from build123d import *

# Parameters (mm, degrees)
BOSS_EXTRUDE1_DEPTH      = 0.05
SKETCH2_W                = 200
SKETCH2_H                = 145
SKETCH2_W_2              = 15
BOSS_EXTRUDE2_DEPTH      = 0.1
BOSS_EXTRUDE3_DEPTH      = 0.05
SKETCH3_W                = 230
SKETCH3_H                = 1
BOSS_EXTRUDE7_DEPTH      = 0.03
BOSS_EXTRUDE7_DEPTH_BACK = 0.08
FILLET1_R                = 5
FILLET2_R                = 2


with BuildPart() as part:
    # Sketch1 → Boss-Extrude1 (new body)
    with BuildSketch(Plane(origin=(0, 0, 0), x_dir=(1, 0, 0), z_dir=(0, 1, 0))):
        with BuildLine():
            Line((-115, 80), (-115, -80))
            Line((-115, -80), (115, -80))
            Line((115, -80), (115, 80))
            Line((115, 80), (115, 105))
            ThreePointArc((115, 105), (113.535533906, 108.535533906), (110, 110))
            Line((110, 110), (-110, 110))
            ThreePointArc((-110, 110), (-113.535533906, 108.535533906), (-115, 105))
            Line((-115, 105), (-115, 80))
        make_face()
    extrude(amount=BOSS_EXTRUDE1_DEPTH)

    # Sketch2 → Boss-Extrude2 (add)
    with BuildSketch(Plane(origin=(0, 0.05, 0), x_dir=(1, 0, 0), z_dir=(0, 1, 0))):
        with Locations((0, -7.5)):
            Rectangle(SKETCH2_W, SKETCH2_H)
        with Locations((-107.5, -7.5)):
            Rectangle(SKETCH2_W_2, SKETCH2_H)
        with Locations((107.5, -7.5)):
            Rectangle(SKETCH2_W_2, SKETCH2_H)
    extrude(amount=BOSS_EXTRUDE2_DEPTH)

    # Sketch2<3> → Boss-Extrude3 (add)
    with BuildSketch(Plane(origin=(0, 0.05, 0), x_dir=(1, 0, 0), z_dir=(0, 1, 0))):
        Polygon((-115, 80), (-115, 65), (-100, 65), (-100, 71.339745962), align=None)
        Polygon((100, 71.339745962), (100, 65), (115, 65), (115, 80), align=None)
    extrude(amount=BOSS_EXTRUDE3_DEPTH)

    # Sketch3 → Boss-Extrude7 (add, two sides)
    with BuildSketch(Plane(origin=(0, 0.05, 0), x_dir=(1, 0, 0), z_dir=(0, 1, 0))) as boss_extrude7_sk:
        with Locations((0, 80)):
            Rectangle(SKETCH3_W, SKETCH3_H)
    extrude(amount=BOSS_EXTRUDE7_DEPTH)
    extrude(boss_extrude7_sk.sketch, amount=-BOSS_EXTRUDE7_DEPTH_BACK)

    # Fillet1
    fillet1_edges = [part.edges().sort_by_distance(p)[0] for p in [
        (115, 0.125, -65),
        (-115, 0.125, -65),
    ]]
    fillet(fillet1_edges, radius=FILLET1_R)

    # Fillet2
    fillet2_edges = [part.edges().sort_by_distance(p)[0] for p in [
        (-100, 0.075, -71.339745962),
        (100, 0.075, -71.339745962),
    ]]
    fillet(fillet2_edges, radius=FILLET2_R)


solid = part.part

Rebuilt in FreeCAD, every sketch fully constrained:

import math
import FreeCAD as App
import Part
import Sketcher
Q = App.Units.Quantity


def edges_at(feature, points):
    """Names of the edges that pass closest to the given points."""
    edges = feature.Shape.Edges
    near = lambda p: min(range(len(edges)), key=lambda i: edges[i].distToShape(Part.Vertex(*p))[0])
    return sorted({f"Edge{near(p) + 1}" for p in points})


def add_polygon(sketch, points):
    """Adds a closed chain of lines whose ends are joined by coincident constraints."""
    first, n = sketch.GeometryCount, len(points)
    for a, b in zip(points, points[1:] + points[:1]):
        sketch.addGeometry(Part.LineSegment(App.Vector(*a, 0), App.Vector(*b, 0)), False)
    for i in range(n):
        sketch.addConstraint(Sketcher.Constraint("Coincident", first + i, 2, first + (i + 1) % n, 1))

doc = App.newDocument("Part")
body = doc.addObject("PartDesign::Body", "Body")

# Sketch on XZ plane
sketch1 = doc.addObject("Sketcher::SketchObject", "Sketch")
body.addObject(sketch1)
sketch1.AttachmentSupport = (doc.XZ_Plane, [""])
sketch1.MapMode = "FlatFace"
sketch1.addGeometry(Part.LineSegment(App.Vector(-115, 80, 0), App.Vector(115, 80, 0)), False)
sketch1.addGeometry(Part.LineSegment(App.Vector(115, 80, 0), App.Vector(115, -105, 0)), False)
sketch1.addGeometry(Part.ArcOfCircle(Part.Circle(App.Vector(110, -105, 0), App.Vector(0, 0, 1), 5), math.radians(-90), math.radians(0)), False)
sketch1.addGeometry(Part.LineSegment(App.Vector(110, -110, 0), App.Vector(-110, -110, 0)), False)
sketch1.addGeometry(Part.ArcOfCircle(Part.Circle(App.Vector(-110, -105, 0), App.Vector(0, 0, 1), 5), math.radians(180), math.radians(270)), False)
sketch1.addGeometry(Part.LineSegment(App.Vector(-115, -105, 0), App.Vector(-115, 80, 0)), False)
sketch1.addConstraint(Sketcher.Constraint("Coincident", 0, 2, 1, 1))
sketch1.addConstraint(Sketcher.Constraint("Tangent", 1, 2, 2, 2))
sketch1.addConstraint(Sketcher.Constraint("Tangent", 2, 1, 3, 1))
sketch1.addConstraint(Sketcher.Constraint("Tangent", 3, 2, 4, 2))
sketch1.addConstraint(Sketcher.Constraint("Tangent", 4, 1, 5, 1))
sketch1.addConstraint(Sketcher.Constraint("Coincident", 5, 2, 0, 1))
sketch1.addConstraint(Sketcher.Constraint("Horizontal", 0))
sketch1.addConstraint(Sketcher.Constraint("Vertical", 1))
sketch1.addConstraint(Sketcher.Constraint("Horizontal", 3))
sketch1.addConstraint(Sketcher.Constraint("Vertical", 5))
sketch1.addConstraint(Sketcher.Constraint("Equal", 2, 4))
sketch1.addConstraint(Sketcher.Constraint("Radius", 2, 5.0))
sketch1.addConstraint(Sketcher.Constraint("DistanceX", 0, 1, 0, 2, 230.0))
sketch1.addConstraint(Sketcher.Constraint("DistanceY", 1, 2, 1, 1, 185.0))
sketch1.addConstraint(Sketcher.Constraint("DistanceX", -1, 1, 2, 3, 110.0))
sketch1.addConstraint(Sketcher.Constraint("DistanceY", 2, 3, -1, 1, 105.0))
pad1 = doc.addObject("PartDesign::Pad", "Pad")
body.addObject(pad1)
pad1.Profile = sketch1
pad1.Length = 0.05
pad1.Reversed = True

# Sketch on XZ plane
sketch2 = doc.addObject("Sketcher::SketchObject", "Sketch001")
body.addObject(sketch2)
sketch2.AttachmentSupport = (doc.XZ_Plane, [""])
sketch2.MapMode = "FlatFace"
sketch2.AttachmentOffset = App.Placement(App.Vector(0, 0, -0.05), App.Rotation())
add_polygon(sketch2, [(-115, -65), (-115, 80), (115, 80), (115, -65)])  # lines 0-3
sketch2.addConstraint(Sketcher.Constraint("Vertical", 0))
sketch2.addConstraint(Sketcher.Constraint("Horizontal", 1))
sketch2.addConstraint(Sketcher.Constraint("Vertical", 2))
sketch2.addConstraint(Sketcher.Constraint("Horizontal", 3))
sketch2.addConstraint(Sketcher.Constraint("DistanceX", 1, 1, 1, 2, 230.0))
sketch2.addConstraint(Sketcher.Constraint("DistanceY", 0, 1, 0, 2, 145.0))
sketch2.addConstraint(Sketcher.Constraint("DistanceX", 0, 2, -1, 1, 115.0))
sketch2.addConstraint(Sketcher.Constraint("DistanceY", -1, 1, 0, 2, 80.0))
pad2 = doc.addObject("PartDesign::Pad", "Pad001")
body.addObject(pad2)
pad2.Profile = sketch2
pad2.Length = 0.1
pad2.Reversed = True

# Sketch on XZ plane
sketch3 = doc.addObject("Sketcher::SketchObject", "Sketch002")
body.addObject(sketch3)
sketch3.AttachmentSupport = (doc.XZ_Plane, [""])
sketch3.MapMode = "FlatFace"
sketch3.AttachmentOffset = App.Placement(App.Vector(0, 0, -0.05), App.Rotation())
add_polygon(sketch3, [(-115, -80), (-115, -65), (-100, -65), (-100, -71)])  # lines 0-3
add_polygon(sketch3, [(100, -71), (100, -65), (115, -65), (115, -80)])  # lines 4-7
sketch3.addConstraint(Sketcher.Constraint("Vertical", 0))
sketch3.addConstraint(Sketcher.Constraint("Horizontal", 1))
sketch3.addConstraint(Sketcher.Constraint("Vertical", 2))
sketch3.addConstraint(Sketcher.Constraint("Vertical", 4))
sketch3.addConstraint(Sketcher.Constraint("Horizontal", 5))
sketch3.addConstraint(Sketcher.Constraint("Vertical", 6))
sketch3.addConstraint(Sketcher.Constraint("Symmetric", 1, 2, 4, 2, -2))
sketch3.addConstraint(Sketcher.Constraint("Symmetric", 3, 2, 6, 2, -2))
sketch3.addConstraint(Sketcher.Constraint("Horizontal", 2, 2, 7, 2))
sketch3.addConstraint(Sketcher.Constraint("Equal", 5, 0))
sketch3.addConstraint(Sketcher.Constraint("DistanceX", 1, 1, 1, 2, 15.0))
sketch3.addConstraint(Sketcher.Constraint("Angle", 3, Q("-150 deg")))
sketch3.addConstraint(Sketcher.Constraint("DistanceX", 0, 2, -1, 1, 115.0))
sketch3.addConstraint(Sketcher.Constraint("DistanceY", 0, 2, -1, 1, 65.0))
pad3 = doc.addObject("PartDesign::Pad", "Pad002")
body.addObject(pad3)
pad3.Profile = sketch3
pad3.Length = 0.05
pad3.Reversed = True

# Sketch on XZ plane
sketch4 = doc.addObject("Sketcher::SketchObject", "Sketch003")
body.addObject(sketch4)
sketch4.AttachmentSupport = (doc.XZ_Plane, [""])
sketch4.MapMode = "FlatFace"
sketch4.AttachmentOffset = App.Placement(App.Vector(0, 0, -0.05), App.Rotation())
add_polygon(sketch4, [(-115, -80.5), (-115, -79.5), (115, -79.5), (115, -80.5)])  # lines 0-3
sketch4.addConstraint(Sketcher.Constraint("Vertical", 0))
sketch4.addConstraint(Sketcher.Constraint("Horizontal", 1))
sketch4.addConstraint(Sketcher.Constraint("Vertical", 2))
sketch4.addConstraint(Sketcher.Constraint("Horizontal", 3))
sketch4.addConstraint(Sketcher.Constraint("DistanceX", 1, 1, 1, 2, 230.0))
sketch4.addConstraint(Sketcher.Constraint("DistanceY", 0, 1, 0, 2, 1.0))
sketch4.addConstraint(Sketcher.Constraint("DistanceX", 0, 2, -1, 1, 115.0))
sketch4.addConstraint(Sketcher.Constraint("DistanceY", 0, 2, -1, 1, 79.5))
pad4 = doc.addObject("PartDesign::Pad", "Pad003")
body.addObject(pad4)
pad4.Profile = sketch4
pad4.Type = "TwoLengths"
pad4.Length = 0.03
pad4.Length2 = 0.08
pad4.Reversed = True
doc.recompute()

fillet = doc.addObject("PartDesign::Fillet", "Fillet")
body.addObject(fillet)
fillet.Base = (pad4, edges_at(pad4, [(115, 0.125, -65), (-115, 0.125, -65)]))
fillet.Radius = 5
doc.recompute()

fillet2 = doc.addObject("PartDesign::Fillet", "Fillet001")
body.addObject(fillet2)
fillet2.Base = (fillet, edges_at(fillet, [(-100, 0.075, -71.34), (100, 0.075, -71.34)]))
fillet2.Radius = 2

doc.recompute()
